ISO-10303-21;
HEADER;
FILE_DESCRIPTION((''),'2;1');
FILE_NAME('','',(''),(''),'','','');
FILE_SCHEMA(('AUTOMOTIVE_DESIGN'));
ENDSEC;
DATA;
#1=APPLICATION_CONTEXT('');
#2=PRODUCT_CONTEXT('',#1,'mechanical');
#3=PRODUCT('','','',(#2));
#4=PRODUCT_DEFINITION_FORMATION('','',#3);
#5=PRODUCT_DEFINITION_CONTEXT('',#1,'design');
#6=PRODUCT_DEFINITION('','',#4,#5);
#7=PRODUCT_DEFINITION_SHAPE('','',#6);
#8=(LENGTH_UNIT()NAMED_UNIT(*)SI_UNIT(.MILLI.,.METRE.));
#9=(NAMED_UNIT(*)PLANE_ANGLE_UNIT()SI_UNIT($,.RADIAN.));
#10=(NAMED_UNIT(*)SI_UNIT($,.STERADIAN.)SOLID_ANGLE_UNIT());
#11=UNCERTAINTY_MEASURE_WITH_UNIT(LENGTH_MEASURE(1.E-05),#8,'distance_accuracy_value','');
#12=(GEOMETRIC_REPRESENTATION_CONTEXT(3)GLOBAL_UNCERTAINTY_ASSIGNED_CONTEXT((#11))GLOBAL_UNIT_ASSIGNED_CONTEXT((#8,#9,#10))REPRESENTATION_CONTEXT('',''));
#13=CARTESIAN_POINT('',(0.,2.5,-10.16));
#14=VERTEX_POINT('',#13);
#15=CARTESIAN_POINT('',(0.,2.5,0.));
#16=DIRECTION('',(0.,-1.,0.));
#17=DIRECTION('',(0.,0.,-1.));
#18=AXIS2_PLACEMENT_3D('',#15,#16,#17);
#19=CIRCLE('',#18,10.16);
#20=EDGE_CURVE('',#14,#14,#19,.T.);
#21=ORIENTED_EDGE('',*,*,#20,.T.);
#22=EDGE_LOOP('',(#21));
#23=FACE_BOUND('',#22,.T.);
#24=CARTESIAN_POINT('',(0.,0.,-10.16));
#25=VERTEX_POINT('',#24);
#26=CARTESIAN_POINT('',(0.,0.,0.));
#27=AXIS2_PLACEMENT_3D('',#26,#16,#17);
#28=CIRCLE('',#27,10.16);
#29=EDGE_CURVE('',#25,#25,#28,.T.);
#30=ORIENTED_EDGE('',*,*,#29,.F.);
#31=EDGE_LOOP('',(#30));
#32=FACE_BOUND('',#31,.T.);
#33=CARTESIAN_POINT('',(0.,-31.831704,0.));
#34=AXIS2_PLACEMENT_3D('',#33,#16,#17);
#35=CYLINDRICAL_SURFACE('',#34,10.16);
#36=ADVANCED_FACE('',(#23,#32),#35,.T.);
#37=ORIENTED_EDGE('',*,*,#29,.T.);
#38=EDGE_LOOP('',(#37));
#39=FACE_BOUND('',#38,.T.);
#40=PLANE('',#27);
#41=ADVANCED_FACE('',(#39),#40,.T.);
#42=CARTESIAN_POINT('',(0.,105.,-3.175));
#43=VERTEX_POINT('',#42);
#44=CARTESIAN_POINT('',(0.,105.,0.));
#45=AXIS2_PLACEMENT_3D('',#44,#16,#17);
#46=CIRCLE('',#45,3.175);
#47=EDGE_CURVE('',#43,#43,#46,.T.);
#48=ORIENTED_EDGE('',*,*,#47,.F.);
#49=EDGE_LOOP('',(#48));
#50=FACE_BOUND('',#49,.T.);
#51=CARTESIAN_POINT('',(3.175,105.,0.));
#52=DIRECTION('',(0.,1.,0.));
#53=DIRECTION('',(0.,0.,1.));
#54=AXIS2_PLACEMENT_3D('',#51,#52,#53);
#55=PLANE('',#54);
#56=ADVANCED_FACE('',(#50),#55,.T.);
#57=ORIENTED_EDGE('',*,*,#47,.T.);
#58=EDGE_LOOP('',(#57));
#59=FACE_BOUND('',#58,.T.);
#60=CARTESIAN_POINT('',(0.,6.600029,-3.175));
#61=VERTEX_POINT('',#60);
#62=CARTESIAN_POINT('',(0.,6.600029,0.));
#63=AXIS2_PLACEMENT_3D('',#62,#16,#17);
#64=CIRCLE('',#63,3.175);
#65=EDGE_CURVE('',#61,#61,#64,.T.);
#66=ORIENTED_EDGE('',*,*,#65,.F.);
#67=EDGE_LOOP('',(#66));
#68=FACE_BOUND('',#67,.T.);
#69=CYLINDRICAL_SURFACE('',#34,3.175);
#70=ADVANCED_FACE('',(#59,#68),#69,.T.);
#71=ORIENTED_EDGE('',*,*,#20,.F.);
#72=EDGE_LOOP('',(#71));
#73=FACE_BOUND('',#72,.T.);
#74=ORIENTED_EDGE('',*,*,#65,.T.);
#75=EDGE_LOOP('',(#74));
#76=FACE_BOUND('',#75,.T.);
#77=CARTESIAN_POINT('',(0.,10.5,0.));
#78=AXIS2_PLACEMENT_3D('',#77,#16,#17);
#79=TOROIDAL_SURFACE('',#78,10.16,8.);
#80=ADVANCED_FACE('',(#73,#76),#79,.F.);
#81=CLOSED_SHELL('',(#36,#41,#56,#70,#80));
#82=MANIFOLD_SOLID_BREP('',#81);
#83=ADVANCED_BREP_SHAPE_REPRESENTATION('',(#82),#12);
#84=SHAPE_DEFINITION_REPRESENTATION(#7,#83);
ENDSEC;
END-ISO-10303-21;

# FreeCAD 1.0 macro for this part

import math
import FreeCAD as App
import Part
import Sketcher
from FreeCAD import Vector

doc = App.newDocument("Part")
body = doc.addObject("PartDesign::Body", "Body")

# Sketch on XY plane
sketch1 = doc.addObject("Sketcher::SketchObject", "Sketch")
body.addObject(sketch1)
sketch1.AttachmentSupport = (doc.XY_Plane, [""])
sketch1.MapMode = "FlatFace"
sketch1.addGeometry([
    Part.LineSegment(Vector(0, 0, 0), Vector(10.2, 0, 0)),  # 0
    Part.LineSegment(Vector(10.2, 0, 0), Vector(10.2, 2.5, 0)),  # 1
    Part.ArcOfCircle(Part.Circle(Vector(10.2, 10.5, 0), Vector(0, 0, 1), 8), math.radians(-151), math.radians(-90)),  # 2
    Part.LineSegment(Vector(3.2, 6.6, 0), Vector(3.2, 105, 0)),  # 3
    Part.LineSegment(Vector(3.2, 105, 0), Vector(0, 105, 0)),  # 4
    Part.LineSegment(Vector(0, 105, 0), Vector(0, 0, 0)),  # 5
], False)
sketch1.addConstraint([
    Sketcher.Constraint("Coincident", 0, 2, 1, 1),
    Sketcher.Constraint("Coincident", 1, 2, 2, 2),
    Sketcher.Constraint("Coincident", 2, 1, 3, 1),
    Sketcher.Constraint("Coincident", 3, 2, 4, 1),
    Sketcher.Constraint("Coincident", 4, 2, 5, 1),
    Sketcher.Constraint("Coincident", 5, 2, 0, 1),
    Sketcher.Constraint("Horizontal", 0),
    Sketcher.Constraint("Vertical", 1),
    Sketcher.Constraint("Vertical", 3),
    Sketcher.Constraint("Horizontal", 4),
    Sketcher.Constraint("Vertical", 5),
    Sketcher.Constraint("Coincident", 5, 2, -1, 1),
    Sketcher.Constraint("Vertical", 2, 3, 0, 2),
    Sketcher.Constraint("Radius", 2, 8.0),
    Sketcher.Constraint("DistanceY", 5, 2, 5, 1, 105.0),
    Sketcher.Constraint("DistanceY", 1, 1, 1, 2, 2.5),
    Sketcher.Constraint("DistanceX", 0, 1, 0, 2, 10.16),
    Sketcher.Constraint("DistanceX", 4, 2, 4, 1, 3.175),
])
revolution = doc.addObject("PartDesign::Revolution", "Revolution")
body.addObject(revolution)
revolution.Profile = sketch1
revolution.ReferenceAxis = (sketch1, ["V_Axis"])
revolution.Angle = 360

doc.recompute()
